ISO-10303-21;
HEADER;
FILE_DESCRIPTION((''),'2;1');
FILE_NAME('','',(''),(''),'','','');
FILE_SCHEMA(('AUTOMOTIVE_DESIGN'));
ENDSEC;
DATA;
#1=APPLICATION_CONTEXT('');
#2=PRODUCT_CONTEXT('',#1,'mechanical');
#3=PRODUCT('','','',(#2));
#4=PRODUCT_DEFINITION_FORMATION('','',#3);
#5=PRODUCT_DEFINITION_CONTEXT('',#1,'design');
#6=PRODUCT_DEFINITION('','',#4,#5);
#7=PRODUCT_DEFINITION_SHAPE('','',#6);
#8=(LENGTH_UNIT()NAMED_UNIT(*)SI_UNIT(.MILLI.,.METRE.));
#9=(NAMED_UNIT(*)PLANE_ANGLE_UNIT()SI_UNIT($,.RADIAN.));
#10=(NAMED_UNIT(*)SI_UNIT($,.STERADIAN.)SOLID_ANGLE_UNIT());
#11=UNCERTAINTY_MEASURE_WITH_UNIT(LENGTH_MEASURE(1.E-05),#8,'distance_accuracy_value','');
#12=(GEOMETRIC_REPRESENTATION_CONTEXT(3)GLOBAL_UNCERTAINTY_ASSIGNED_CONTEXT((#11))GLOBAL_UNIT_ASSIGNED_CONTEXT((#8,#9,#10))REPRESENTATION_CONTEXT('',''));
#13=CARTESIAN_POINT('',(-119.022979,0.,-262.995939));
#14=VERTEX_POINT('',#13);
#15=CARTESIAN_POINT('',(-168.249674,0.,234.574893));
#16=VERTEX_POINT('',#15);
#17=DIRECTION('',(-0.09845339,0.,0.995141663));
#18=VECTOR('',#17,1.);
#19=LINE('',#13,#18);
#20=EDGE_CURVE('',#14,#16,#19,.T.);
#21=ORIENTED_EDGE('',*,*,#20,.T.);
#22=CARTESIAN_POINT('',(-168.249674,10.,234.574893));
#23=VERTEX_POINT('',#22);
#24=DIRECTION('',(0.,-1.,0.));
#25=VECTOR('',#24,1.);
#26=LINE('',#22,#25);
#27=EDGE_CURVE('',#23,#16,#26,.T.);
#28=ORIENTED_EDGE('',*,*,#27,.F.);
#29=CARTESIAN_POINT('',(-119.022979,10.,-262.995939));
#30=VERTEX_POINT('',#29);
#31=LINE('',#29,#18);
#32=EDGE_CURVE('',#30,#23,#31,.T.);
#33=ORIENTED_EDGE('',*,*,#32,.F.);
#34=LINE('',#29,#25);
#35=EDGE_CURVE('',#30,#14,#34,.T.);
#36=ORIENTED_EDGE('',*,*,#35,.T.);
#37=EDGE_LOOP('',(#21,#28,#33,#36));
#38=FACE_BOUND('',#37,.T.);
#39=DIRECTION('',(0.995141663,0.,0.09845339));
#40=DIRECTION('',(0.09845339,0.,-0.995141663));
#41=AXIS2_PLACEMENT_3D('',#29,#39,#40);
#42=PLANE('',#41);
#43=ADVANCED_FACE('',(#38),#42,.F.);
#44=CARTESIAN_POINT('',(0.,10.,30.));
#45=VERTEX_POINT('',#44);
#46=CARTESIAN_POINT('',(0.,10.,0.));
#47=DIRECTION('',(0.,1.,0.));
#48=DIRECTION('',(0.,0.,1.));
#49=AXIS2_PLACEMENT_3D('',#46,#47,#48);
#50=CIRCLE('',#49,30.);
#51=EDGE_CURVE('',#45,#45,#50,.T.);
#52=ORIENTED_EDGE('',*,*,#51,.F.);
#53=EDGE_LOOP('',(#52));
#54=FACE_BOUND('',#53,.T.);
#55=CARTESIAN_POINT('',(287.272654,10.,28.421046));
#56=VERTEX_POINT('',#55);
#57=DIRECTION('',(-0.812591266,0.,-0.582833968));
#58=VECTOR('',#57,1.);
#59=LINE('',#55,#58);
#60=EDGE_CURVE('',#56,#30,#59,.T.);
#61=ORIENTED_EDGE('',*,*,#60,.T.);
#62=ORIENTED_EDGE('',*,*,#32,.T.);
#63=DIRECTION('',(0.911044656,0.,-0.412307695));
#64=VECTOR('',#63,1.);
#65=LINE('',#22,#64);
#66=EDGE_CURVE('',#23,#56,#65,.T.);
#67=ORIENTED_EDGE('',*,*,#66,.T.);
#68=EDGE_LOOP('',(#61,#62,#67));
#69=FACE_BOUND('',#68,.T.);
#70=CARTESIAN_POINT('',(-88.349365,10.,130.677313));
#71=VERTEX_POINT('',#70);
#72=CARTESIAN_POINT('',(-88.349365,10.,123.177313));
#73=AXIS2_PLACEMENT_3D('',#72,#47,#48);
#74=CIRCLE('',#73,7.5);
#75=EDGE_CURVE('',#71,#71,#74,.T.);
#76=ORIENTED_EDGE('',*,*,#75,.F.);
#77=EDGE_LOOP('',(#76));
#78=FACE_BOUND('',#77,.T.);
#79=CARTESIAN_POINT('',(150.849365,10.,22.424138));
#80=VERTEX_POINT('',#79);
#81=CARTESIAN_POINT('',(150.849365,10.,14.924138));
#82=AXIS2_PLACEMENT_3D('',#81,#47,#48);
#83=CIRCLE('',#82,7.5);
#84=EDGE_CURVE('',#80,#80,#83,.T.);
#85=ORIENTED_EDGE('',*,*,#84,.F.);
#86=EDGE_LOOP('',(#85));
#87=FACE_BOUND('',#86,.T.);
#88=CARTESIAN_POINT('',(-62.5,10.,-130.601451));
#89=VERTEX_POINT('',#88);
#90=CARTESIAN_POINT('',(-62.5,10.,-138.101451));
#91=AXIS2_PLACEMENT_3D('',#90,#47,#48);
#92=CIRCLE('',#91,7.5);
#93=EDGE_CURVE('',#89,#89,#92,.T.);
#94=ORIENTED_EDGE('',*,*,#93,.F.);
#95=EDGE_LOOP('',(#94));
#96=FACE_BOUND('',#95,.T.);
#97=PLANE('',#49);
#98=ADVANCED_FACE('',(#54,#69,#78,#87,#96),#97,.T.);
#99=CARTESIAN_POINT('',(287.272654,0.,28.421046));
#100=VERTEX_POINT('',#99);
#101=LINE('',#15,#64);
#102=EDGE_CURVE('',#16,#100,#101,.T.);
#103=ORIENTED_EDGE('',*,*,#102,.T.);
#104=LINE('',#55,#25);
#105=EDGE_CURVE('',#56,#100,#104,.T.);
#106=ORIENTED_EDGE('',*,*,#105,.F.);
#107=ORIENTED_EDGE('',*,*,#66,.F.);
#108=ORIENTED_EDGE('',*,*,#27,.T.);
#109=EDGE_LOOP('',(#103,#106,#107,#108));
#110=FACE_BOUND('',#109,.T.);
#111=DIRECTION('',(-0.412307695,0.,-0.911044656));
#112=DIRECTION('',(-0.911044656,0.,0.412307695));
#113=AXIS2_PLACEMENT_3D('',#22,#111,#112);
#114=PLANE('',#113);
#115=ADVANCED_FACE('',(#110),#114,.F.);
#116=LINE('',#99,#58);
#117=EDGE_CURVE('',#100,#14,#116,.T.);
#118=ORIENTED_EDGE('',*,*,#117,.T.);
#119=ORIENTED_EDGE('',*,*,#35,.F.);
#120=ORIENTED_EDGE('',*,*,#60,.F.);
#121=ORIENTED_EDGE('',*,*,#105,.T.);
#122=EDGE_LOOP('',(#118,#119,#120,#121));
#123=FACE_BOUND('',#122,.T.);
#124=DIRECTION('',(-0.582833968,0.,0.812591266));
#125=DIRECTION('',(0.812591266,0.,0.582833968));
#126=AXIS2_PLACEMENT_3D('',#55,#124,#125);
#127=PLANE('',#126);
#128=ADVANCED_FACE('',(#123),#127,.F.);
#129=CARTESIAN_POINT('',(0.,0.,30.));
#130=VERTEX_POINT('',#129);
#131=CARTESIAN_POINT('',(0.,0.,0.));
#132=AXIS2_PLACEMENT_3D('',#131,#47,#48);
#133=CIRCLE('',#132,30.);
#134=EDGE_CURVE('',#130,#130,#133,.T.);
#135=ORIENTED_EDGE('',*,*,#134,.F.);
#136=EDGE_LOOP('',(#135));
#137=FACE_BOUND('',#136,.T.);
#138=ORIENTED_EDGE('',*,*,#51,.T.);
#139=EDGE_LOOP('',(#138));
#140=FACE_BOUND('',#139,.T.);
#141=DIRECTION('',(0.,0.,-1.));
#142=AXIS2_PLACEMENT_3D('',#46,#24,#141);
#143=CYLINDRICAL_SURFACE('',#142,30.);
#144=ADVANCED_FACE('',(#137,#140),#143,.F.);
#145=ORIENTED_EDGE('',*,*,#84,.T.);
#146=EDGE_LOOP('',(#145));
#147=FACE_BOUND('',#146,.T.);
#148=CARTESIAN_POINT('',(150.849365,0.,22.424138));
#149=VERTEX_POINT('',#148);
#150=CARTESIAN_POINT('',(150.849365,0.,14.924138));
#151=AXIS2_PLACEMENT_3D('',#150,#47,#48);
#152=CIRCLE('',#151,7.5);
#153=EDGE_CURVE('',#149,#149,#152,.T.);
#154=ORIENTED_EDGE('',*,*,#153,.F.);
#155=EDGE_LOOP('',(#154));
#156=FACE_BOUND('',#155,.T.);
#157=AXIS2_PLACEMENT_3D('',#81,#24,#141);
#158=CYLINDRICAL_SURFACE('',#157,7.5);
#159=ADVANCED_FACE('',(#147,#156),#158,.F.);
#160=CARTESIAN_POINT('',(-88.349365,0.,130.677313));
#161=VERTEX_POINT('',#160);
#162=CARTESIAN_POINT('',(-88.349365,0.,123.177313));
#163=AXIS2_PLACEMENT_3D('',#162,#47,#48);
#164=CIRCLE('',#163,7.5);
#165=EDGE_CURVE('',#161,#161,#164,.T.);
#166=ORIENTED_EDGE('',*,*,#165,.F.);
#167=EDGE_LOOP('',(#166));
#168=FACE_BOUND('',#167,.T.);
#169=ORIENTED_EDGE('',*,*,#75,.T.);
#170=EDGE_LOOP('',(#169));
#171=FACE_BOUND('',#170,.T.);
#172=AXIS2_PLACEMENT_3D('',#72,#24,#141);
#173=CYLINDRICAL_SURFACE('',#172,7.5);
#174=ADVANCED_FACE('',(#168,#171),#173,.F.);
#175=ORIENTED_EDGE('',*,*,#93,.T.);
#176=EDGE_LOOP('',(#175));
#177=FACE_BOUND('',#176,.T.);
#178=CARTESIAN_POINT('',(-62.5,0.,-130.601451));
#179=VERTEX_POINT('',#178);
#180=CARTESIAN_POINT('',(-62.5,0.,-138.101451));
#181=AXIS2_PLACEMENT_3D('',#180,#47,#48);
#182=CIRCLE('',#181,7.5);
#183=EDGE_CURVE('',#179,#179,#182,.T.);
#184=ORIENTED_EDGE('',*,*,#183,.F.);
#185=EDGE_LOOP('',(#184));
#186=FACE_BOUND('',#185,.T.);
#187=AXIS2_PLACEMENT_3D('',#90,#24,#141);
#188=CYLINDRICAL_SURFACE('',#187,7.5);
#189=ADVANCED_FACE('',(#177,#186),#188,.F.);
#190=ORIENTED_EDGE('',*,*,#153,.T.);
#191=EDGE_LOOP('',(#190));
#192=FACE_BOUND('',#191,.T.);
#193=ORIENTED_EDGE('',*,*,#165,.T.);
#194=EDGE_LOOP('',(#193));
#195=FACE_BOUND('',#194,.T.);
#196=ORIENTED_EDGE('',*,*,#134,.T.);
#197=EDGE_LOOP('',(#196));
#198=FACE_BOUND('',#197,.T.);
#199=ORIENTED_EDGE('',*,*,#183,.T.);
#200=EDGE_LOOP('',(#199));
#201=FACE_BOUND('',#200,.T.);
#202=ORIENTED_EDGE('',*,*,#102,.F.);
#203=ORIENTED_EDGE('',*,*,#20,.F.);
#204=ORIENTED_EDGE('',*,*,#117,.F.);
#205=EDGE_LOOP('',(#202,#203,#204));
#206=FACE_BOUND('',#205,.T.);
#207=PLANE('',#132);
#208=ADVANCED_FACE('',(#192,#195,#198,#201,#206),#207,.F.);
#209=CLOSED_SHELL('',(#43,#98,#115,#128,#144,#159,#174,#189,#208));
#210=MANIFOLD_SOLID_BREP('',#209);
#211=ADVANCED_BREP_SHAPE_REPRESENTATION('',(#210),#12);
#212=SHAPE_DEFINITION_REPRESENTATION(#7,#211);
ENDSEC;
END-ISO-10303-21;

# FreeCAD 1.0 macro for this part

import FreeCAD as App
import Part
import Sketcher

V = App.Vector


def add_polygon(sketch, points):
    """Adds a closed chain of lines whose ends are joined by coincident constraints."""
    first, n = sketch.GeometryCount, len(points)
    for a, b in zip(points, points[1:] + points[:1]):
        sketch.addGeometry(Part.LineSegment(App.Vector(*a, 0), App.Vector(*b, 0)), False)
    for i in range(n):
        sketch.addConstraint(Sketcher.Constraint("Coincident", first + i, 2, first + (i + 1) % n, 1))

doc = App.newDocument("Part")
body = doc.addObject("PartDesign::Body", "Body")

# Sketch on XZ plane
sketch1 = body.newObject("Sketcher::SketchObject", "Sketch")
sketch1.AttachmentSupport = (doc.getObject("XZ_Plane"), [""])
sketch1.MapMode = "FlatFace"
add_polygon(sketch1, [(287.272654, 28.421046), (-119.022979, -262.995939), (-168.249674, 234.574893)])  # lines 0-2
sketch1.addGeometry(Part.Circle(V(-88.349365, 123.177313, 0), V(0, 0, 1), 7.5), False)  # 3
sketch1.addGeometry(Part.Circle(V(0, 0, 0), V(0, 0, 1), 30), False)  # 4
sketch1.addGeometry(Part.Circle(V(150.849365, 14.924138, 0), V(0, 0, 1), 7.5), False)  # 5
sketch1.addGeometry(Part.Circle(V(-62.5, -138.101451, 0), V(0, 0, 1), 7.5), False)  # 6
sketch1.addConstraint(Sketcher.Constraint("Coincident", 4, 3, -1, 1))
sketch1.addConstraint(Sketcher.Constraint("Equal", 3, 5))
sketch1.addConstraint(Sketcher.Constraint("Equal", 5, 6))
sketch1.addConstraint(Sketcher.Constraint("Equal", 0, 1))
sketch1.addConstraint(Sketcher.Constraint("Equal", 1, 2))
sketch1.addConstraint(Sketcher.Constraint("Diameter", 3, 15.0))
sketch1.addConstraint(Sketcher.Constraint("Diameter", 4, 60.0))
sketch1.addConstraint(Sketcher.Constraint("Distance", 0, 500.0))
sketch1.addConstraint(Sketcher.Constraint("DistanceX", 6, 3, -1, 1, 62.5))
sketch1.addConstraint(Sketcher.Constraint("DistanceY", 6, 3, -1, 1, 138.101451))
sketch1.addConstraint(Sketcher.Constraint("DistanceX", 0, 2, -1, 1, 119.022979))
sketch1.addConstraint(Sketcher.Constraint("DistanceY", 0, 2, -1, 1, 262.995939))
sketch1.addConstraint(Sketcher.Constraint("DistanceX", 3, 3, 5, 3, 239.19873))
sketch1.addConstraint(Sketcher.Constraint("DistanceY", 6, 3, 5, 3, 153.025589))
sketch1.addConstraint(Sketcher.Constraint("DistanceY", 0, 2, 3, 3, 386.173252))
sketch1.addConstraint(Sketcher.Constraint("DistanceX", 1, 2, 3, 3, 79.900309))
sketch1.addConstraint(Sketcher.Constraint("DistanceY", 3, 3, 1, 2, 111.39758))
pad1 = body.newObject("PartDesign::Pad", "Pad")
pad1.Profile = sketch1
pad1.Length = 10
pad1.Reversed = True

doc.recompute()
